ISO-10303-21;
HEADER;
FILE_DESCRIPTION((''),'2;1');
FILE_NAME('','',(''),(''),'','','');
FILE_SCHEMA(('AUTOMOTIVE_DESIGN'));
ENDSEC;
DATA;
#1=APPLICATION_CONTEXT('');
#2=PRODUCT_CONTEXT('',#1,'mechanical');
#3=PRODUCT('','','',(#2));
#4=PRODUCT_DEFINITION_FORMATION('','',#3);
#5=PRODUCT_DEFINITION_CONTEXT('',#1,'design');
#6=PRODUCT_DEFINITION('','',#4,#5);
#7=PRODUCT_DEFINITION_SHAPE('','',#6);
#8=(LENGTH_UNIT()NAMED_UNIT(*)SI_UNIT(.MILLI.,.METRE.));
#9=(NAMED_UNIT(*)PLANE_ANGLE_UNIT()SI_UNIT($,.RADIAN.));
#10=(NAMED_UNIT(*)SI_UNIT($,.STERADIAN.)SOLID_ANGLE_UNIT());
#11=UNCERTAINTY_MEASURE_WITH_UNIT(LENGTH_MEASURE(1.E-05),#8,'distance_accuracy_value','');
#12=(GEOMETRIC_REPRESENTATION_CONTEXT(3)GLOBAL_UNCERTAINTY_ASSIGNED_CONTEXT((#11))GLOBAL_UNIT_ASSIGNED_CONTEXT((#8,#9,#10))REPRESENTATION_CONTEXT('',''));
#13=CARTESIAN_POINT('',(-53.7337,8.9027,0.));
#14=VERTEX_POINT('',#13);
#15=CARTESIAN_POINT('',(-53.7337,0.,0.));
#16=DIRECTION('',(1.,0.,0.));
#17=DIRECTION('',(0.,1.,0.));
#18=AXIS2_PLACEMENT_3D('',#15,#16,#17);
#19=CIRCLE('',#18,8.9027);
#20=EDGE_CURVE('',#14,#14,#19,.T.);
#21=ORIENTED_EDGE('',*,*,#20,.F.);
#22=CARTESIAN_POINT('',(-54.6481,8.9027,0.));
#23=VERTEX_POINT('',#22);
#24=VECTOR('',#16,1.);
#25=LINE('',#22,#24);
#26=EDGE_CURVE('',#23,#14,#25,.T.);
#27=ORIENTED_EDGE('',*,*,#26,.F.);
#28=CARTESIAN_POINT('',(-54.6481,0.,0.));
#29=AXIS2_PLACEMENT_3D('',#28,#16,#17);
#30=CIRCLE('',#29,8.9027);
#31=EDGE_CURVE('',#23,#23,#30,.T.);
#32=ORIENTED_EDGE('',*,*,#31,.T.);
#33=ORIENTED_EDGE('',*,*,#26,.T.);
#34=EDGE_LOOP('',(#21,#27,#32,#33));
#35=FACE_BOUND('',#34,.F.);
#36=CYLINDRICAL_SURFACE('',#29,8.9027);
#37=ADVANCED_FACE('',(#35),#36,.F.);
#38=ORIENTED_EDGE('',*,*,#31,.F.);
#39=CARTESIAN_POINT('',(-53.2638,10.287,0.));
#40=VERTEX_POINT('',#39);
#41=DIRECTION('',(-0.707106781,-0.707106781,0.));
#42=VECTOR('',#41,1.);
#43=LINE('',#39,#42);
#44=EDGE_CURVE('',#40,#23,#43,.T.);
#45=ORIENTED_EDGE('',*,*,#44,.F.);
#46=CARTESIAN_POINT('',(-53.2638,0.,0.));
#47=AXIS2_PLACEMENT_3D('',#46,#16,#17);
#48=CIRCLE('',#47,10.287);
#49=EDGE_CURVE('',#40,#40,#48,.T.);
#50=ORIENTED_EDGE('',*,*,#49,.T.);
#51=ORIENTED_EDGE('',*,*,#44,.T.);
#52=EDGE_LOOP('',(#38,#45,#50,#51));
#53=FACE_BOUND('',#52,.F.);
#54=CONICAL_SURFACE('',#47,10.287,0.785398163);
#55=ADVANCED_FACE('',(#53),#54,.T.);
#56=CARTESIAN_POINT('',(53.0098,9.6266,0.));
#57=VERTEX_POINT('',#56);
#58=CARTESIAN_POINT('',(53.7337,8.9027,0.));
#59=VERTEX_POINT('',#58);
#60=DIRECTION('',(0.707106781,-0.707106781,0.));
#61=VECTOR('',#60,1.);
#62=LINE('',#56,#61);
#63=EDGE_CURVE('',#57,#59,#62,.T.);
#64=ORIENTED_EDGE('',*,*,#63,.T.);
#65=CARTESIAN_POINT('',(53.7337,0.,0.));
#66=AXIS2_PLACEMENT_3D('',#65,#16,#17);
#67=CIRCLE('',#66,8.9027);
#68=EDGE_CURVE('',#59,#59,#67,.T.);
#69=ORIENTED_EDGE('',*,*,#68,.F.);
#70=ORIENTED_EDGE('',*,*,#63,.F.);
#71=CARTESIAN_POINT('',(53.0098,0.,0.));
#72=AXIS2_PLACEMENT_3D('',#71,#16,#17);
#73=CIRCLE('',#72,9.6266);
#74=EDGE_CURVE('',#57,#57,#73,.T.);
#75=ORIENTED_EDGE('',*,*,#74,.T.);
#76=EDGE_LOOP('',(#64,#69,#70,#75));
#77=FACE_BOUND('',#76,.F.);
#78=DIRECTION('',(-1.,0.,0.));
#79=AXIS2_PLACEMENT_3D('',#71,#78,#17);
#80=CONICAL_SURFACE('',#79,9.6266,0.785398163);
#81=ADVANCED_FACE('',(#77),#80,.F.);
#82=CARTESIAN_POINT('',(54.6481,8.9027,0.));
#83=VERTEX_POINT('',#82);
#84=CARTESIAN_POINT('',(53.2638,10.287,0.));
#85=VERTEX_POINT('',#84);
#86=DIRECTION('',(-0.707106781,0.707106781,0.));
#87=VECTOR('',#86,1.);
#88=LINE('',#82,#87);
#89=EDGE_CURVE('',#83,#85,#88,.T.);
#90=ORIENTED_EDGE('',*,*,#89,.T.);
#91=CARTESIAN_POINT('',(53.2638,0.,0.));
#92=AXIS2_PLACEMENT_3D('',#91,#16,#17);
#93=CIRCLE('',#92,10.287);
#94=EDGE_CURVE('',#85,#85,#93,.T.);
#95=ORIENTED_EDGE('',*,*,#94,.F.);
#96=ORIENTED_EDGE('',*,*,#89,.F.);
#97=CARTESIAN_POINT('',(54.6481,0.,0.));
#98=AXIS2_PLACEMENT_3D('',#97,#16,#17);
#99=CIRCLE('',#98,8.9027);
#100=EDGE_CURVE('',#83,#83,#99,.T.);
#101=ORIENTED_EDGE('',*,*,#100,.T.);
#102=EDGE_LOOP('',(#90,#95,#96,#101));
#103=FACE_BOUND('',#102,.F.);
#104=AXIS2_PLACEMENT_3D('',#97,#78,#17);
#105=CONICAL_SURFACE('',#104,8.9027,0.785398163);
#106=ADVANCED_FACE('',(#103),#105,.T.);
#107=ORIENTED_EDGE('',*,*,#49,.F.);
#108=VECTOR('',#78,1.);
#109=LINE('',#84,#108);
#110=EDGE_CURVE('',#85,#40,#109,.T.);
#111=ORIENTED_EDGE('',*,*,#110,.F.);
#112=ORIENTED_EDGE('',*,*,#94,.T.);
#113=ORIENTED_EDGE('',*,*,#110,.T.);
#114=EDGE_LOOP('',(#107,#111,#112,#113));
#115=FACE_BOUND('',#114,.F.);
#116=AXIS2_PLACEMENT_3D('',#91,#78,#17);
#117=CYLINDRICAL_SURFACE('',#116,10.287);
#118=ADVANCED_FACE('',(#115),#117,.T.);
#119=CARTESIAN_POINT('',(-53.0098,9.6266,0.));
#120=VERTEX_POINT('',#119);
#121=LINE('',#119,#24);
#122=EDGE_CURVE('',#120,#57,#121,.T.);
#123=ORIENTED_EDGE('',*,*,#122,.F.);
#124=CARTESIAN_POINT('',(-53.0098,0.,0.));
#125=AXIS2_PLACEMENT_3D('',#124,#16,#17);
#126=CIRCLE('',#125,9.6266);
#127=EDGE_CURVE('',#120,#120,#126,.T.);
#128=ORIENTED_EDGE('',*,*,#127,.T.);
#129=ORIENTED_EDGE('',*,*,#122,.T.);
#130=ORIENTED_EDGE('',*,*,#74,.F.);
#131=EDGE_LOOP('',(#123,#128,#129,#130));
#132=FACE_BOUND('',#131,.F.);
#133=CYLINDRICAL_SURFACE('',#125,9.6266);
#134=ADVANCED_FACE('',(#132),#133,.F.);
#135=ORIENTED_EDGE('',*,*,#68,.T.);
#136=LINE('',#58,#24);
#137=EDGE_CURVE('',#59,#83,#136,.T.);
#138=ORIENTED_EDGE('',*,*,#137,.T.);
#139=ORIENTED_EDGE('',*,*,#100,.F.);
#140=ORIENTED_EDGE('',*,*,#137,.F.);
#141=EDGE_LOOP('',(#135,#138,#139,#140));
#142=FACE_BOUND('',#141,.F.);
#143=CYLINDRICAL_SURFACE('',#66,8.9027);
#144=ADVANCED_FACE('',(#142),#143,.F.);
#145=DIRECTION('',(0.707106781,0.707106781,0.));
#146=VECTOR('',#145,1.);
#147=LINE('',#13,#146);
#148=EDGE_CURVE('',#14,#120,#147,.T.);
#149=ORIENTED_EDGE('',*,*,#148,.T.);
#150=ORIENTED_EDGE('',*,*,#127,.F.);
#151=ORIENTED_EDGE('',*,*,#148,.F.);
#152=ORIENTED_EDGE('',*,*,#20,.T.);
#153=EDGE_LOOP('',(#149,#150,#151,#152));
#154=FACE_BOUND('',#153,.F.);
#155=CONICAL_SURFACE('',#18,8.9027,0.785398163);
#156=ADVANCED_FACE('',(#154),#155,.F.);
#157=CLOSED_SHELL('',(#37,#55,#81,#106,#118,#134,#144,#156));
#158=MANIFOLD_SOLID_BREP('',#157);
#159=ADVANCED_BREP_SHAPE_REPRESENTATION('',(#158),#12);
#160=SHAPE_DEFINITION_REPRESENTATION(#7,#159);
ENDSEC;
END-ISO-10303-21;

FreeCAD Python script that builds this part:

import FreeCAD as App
import Part
import Sketcher
Q = App.Units.Quantity


def add_polygon(sketch, points):
    """Adds a closed chain of lines whose ends are joined by coincident constraints."""
    first, n = sketch.GeometryCount, len(points)
    for a, b in zip(points, points[1:] + points[:1]):
        sketch.addGeometry(Part.LineSegment(App.Vector(*a, 0), App.Vector(*b, 0)), False)
    for i in range(n):
        sketch.addConstraint(Sketcher.Constraint("Coincident", first + i, 2, first + (i + 1) % n, 1))

doc = App.newDocument("Part")
body = doc.addObject("PartDesign::Body", "Body")

sketch1 = doc.addObject("Sketcher::SketchObject", "Sketch")
body.addObject(sketch1)
sketch1.AttachmentSupport = (doc.XY_Plane, [""])
sketch1.MapMode = "FlatFace"
add_polygon(sketch1, [(-53.3, 10.3), (-54.6, 8.9), (-53.7, 8.9), (-53, 9.6), (53, 9.6), (53.7, 8.9), (54.6, 8.9), (53.3, 10.3)])
sketch1.addConstraint([
    Sketcher.Constraint("Horizontal", 1),
    Sketcher.Constraint("Horizontal", 3),
    Sketcher.Constraint("Horizontal", 5),
    Sketcher.Constraint("Horizontal", 7),
    Sketcher.Constraint("Symmetric", 1, 2, 4, 2, -2),
    Sketcher.Constraint("Parallel", 0, 2),
    Sketcher.Constraint("Perpendicular", 2, 4),
    Sketcher.Constraint("Parallel", 4, 6),
    Sketcher.Constraint("Equal", 1, 5),
    Sketcher.Constraint("Equal", 2, 4),
    Sketcher.Constraint("DistanceX", 1, 1, 1, 2, Q("0.036 in")),
    Sketcher.Constraint("DistanceX", 3, 1, 3, 2, Q("4.174 in")),
    Sketcher.Constraint("DistanceX", 7, 2, 7, 1, Q("4.194 in")),
    Sketcher.Constraint("DistanceY", -1, 1, 2, 2, Q("0.379 in")),
    Sketcher.Constraint("DistanceX", 1, 2, 4, 2, Q("4.231 in")),
])
revolution = doc.addObject("PartDesign::Revolution", "Revolution")
body.addObject(revolution)
revolution.Profile = sketch1
revolution.ReferenceAxis = (sketch1, ["H_Axis"])
revolution.Angle = 360

doc.recompute()
